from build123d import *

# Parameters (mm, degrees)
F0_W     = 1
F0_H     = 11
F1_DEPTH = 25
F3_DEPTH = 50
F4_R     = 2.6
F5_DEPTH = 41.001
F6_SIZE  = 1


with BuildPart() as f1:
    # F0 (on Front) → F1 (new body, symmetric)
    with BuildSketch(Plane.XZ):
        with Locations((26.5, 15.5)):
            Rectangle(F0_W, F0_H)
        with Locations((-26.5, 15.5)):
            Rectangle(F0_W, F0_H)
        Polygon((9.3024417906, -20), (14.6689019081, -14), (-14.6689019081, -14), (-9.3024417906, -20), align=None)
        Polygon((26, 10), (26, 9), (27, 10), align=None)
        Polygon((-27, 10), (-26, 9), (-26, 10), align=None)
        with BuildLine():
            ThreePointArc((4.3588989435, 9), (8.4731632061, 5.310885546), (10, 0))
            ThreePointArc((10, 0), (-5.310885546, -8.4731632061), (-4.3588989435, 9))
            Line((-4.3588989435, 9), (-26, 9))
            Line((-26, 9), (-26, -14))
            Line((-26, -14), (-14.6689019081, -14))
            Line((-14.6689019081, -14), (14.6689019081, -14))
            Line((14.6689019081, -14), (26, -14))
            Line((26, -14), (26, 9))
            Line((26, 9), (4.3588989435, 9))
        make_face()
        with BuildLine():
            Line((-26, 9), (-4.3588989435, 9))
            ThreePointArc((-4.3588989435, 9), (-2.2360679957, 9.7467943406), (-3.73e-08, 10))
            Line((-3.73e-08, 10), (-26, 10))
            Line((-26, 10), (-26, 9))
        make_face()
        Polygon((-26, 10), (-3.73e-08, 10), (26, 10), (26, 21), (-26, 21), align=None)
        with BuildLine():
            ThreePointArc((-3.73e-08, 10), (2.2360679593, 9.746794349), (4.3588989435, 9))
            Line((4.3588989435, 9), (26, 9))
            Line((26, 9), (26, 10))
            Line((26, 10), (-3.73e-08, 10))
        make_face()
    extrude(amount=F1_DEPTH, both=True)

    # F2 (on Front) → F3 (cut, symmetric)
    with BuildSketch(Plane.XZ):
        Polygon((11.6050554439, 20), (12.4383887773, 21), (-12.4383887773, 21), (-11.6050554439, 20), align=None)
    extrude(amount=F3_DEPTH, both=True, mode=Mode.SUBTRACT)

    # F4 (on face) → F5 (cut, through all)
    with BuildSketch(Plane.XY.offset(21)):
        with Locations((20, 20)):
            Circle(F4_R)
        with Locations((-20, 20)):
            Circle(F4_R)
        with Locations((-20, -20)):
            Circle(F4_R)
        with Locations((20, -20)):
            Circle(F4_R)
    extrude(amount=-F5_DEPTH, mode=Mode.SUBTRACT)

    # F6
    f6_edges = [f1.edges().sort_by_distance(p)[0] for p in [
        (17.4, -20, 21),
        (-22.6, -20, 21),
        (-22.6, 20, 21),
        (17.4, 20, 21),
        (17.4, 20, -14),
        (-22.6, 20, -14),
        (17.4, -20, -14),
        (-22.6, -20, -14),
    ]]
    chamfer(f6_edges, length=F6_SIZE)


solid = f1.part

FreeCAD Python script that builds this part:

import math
import FreeCAD as App
import Part
import Sketcher
from FreeCAD import Vector
Q = App.Units.Quantity


def edges_at(feature, points):
    """Names of the edges that pass closest to the given points."""
    edges = feature.Shape.Edges
    near = lambda p: min(range(len(edges)), key=lambda i: edges[i].distToShape(Part.Vertex(*p))[0])
    return sorted({f"Edge{near(p) + 1}" for p in points})


def add_polygon(sketch, points):
    """Adds a closed chain of lines whose ends are joined by coincident constraints."""
    first, n = sketch.GeometryCount, len(points)
    for a, b in zip(points, points[1:] + points[:1]):
        sketch.addGeometry(Part.LineSegment(App.Vector(*a, 0), App.Vector(*b, 0)), False)
    for i in range(n):
        sketch.addConstraint(Sketcher.Constraint("Coincident", first + i, 2, first + (i + 1) % n, 1))

doc = App.newDocument("Part")
body = doc.addObject("PartDesign::Body", "Body")

# Sketch on XZ plane
sketch1 = doc.addObject("Sketcher::SketchObject", "Sketch")
body.addObject(sketch1)
sketch1.AttachmentSupport = (doc.XZ_Plane, [""])
sketch1.MapMode = "FlatFace"
add_polygon(sketch1, [(26, -14), (26, 9), (27, 10), (27, 21), (-27, 21), (-27, 10), (-26, 9), (-26, -14), (-14.668902, -14), (-9.302442, -20), (9.302442, -20), (14.668902, -14)])  # lines 0-11
sketch1.addGeometry(Part.ArcOfCircle(Part.Circle(Vector(0, 0, 0), Vector(0, 0, 1), 10), math.radians(90), math.radians(115.841933)), False)  # 12
sketch1.addGeometry(Part.ArcOfCircle(Part.Circle(Vector(0, 0, 0), Vector(0, 0, 1), 10), math.radians(64.158067), math.radians(90)), False)  # 13
sketch1.addGeometry(Part.ArcOfCircle(Part.Circle(Vector(0, 0, 0), Vector(0, 0, 1), 10), math.radians(0), math.radians(64.158067)), False)  # 14
sketch1.addGeometry(Part.ArcOfCircle(Part.Circle(Vector(0, 0, 0), Vector(0, 0, 1), 10), math.radians(115.841933), math.radians(360)), False)  # 15
sketch1.addConstraint(Sketcher.Constraint("Tangent", 12, 1, 13, 2))
sketch1.addConstraint(Sketcher.Constraint("Tangent", 13, 1, 14, 2))
sketch1.addConstraint(Sketcher.Constraint("Tangent", 14, 1, 15, 2))
sketch1.addConstraint(Sketcher.Constraint("Tangent", 15, 1, 12, 2))
sketch1.addConstraint(Sketcher.Constraint("Vertical", 0))
sketch1.addConstraint(Sketcher.Constraint("Vertical", 2))
sketch1.addConstraint(Sketcher.Constraint("Horizontal", 3))
sketch1.addConstraint(Sketcher.Constraint("Vertical", 4))
sketch1.addConstraint(Sketcher.Constraint("Vertical", 6))
sketch1.addConstraint(Sketcher.Constraint("Horizontal", 7))
sketch1.addConstraint(Sketcher.Constraint("Horizontal", 9))
sketch1.addConstraint(Sketcher.Constraint("Horizontal", 11))
sketch1.addConstraint(Sketcher.Constraint("Coincident", 12, 3, -1, 1))
sketch1.addConstraint(Sketcher.Constraint("Equal", 12, 13))
sketch1.addConstraint(Sketcher.Constraint("Symmetric", 1, 2, 4, 2, -2))
sketch1.addConstraint(Sketcher.Constraint("Symmetric", 0, 2, 5, 2, -2))
sketch1.addConstraint(Sketcher.Constraint("Symmetric", 7, 2, 10, 2, -2))
sketch1.addConstraint(Sketcher.Constraint("PointOnObject", 12, 1, -2))
sketch1.addConstraint(Sketcher.Constraint("PointOnObject", 14, 1, -1))
sketch1.addConstraint(Sketcher.Constraint("Perpendicular", 1, 5))
sketch1.addConstraint(Sketcher.Constraint("Horizontal", 4, 2, 12, 1))
sketch1.addConstraint(Sketcher.Constraint("Horizontal", 5, 2, 13, 1))
sketch1.addConstraint(Sketcher.Constraint("Horizontal", 13, 1, 15, 1))
sketch1.addConstraint(Sketcher.Constraint("Equal", 8, 10))
sketch1.addConstraint(Sketcher.Constraint("Radius", 12, Q("10 mm")))
sketch1.addConstraint(Sketcher.Constraint("DistanceX", 3, 2, 3, 1, Q("54 mm")))
sketch1.addConstraint(Sketcher.Constraint("DistanceY", 0, 1, 0, 2, Q("23 mm")))
sketch1.addConstraint(Sketcher.Constraint("DistanceY", 2, 1, 2, 2, Q("11 mm")))
sketch1.addConstraint(Sketcher.Constraint("DistanceX", -1, 1, 0, 2, Q("26 mm")))
sketch1.addConstraint(Sketcher.Constraint("DistanceY", 8, 2, -1, 1, Q("20 mm")))
sketch1.addConstraint(Sketcher.Constraint("DistanceX", 7, 1, 7, 2, Q("11.331098 mm")))
sketch1.addConstraint(Sketcher.Constraint("DistanceX", 9, 1, 9, 2, Q("18.604884 mm")))
pad1 = doc.addObject("PartDesign::Pad", "Pad")
body.addObject(pad1)
pad1.Profile = sketch1
pad1.Length = 50
pad1.Midplane = True

# Sketch on XZ plane
sketch2 = doc.addObject("Sketcher::SketchObject", "Sketch001")
body.addObject(sketch2)
sketch2.AttachmentSupport = (doc.XZ_Plane, [""])
sketch2.MapMode = "FlatFace"
add_polygon(sketch2, [(11.605055, 20), (12.438389, 21), (-12.438389, 21), (-11.605055, 20)])  # lines 0-3
sketch2.addConstraint(Sketcher.Constraint("Horizontal", 1))
sketch2.addConstraint(Sketcher.Constraint("Horizontal", 3))
sketch2.addConstraint(Sketcher.Constraint("Equal", 0, 2))
sketch2.addConstraint(Sketcher.Constraint("DistanceY", -1, 1, 0, 2, Q("21 mm")))
sketch2.addConstraint(Sketcher.Constraint("DistanceY", -1, 1, 2, 2, Q("20 mm")))
sketch2.addConstraint(Sketcher.Constraint("DistanceX", 3, 1, 3, 2, Q("23.210111 mm")))
sketch2.addConstraint(Sketcher.Constraint("Distance", 0, Q("1.301708 mm")))
sketch2.addConstraint(Sketcher.Constraint("DistanceX", -1, 1, 0, 2, Q("12.438389 mm")))
pocket1 = doc.addObject("PartDesign::Pocket", "Pocket")
body.addObject(pocket1)
pocket1.Profile = sketch2
pocket1.Length = 100
pocket1.Midplane = True

# Sketch on XY plane
sketch3 = doc.addObject("Sketcher::SketchObject", "Sketch002")
body.addObject(sketch3)
sketch3.AttachmentSupport = (doc.XY_Plane, [""])
sketch3.MapMode = "FlatFace"
sketch3.AttachmentOffset = App.Placement(Vector(0, 0, 21), App.Rotation())
sketch3.addGeometry(Part.Circle(Vector(20, 20, 0), Vector(0, 0, 1), 2.6), False)
sketch3.addGeometry(Part.Circle(Vector(-20, 20, 0), Vector(0, 0, 1), 2.6), False)
sketch3.addGeometry(Part.Circle(Vector(-20, -20, 0), Vector(0, 0, 1), 2.6), False)
sketch3.addGeometry(Part.Circle(Vector(20, -20, 0), Vector(0, 0, 1), 2.6), False)
sketch3.addConstraint(Sketcher.Constraint("Equal", 0, 1))
sketch3.addConstraint(Sketcher.Constraint("Equal", 1, 2))
sketch3.addConstraint(Sketcher.Constraint("Equal", 2, 3))
sketch3.addConstraint(Sketcher.Constraint("Symmetric", 0, 3, 2, 3, -1, 1))
sketch3.addConstraint(Sketcher.Constraint("Symmetric", 1, 3, 3, 3, -1, 1))
sketch3.addConstraint(Sketcher.Constraint("Symmetric", 0, 3, 1, 3, -2))
sketch3.addConstraint(Sketcher.Constraint("Diameter", 0, Q("5.2 mm")))
sketch3.addConstraint(Sketcher.Constraint("DistanceX", -1, 1, 0, 3, Q("20 mm")))
sketch3.addConstraint(Sketcher.Constraint("DistanceY", -1, 1, 0, 3, Q("20 mm")))
pocket2 = doc.addObject("PartDesign::Pocket", "Pocket001")
body.addObject(pocket2)
pocket2.Profile = sketch3
pocket2.Type = "ThroughAll"
doc.recompute()

chamfer = doc.addObject("PartDesign::Chamfer", "Chamfer")
body.addObject(chamfer)
chamfer.Base = (pocket2, edges_at(pocket2, [
    (17.4, -20, 21),
    (-22.6, -20, 21),
    (-22.6, 20, 21),
    (17.4, 20, 21),
    (17.4, 20, -14),
    (-22.6, 20, -14),
    (17.4, -20, -14),
    (-22.6, -20, -14),
]))
chamfer.Size = 1

doc.recompute()
